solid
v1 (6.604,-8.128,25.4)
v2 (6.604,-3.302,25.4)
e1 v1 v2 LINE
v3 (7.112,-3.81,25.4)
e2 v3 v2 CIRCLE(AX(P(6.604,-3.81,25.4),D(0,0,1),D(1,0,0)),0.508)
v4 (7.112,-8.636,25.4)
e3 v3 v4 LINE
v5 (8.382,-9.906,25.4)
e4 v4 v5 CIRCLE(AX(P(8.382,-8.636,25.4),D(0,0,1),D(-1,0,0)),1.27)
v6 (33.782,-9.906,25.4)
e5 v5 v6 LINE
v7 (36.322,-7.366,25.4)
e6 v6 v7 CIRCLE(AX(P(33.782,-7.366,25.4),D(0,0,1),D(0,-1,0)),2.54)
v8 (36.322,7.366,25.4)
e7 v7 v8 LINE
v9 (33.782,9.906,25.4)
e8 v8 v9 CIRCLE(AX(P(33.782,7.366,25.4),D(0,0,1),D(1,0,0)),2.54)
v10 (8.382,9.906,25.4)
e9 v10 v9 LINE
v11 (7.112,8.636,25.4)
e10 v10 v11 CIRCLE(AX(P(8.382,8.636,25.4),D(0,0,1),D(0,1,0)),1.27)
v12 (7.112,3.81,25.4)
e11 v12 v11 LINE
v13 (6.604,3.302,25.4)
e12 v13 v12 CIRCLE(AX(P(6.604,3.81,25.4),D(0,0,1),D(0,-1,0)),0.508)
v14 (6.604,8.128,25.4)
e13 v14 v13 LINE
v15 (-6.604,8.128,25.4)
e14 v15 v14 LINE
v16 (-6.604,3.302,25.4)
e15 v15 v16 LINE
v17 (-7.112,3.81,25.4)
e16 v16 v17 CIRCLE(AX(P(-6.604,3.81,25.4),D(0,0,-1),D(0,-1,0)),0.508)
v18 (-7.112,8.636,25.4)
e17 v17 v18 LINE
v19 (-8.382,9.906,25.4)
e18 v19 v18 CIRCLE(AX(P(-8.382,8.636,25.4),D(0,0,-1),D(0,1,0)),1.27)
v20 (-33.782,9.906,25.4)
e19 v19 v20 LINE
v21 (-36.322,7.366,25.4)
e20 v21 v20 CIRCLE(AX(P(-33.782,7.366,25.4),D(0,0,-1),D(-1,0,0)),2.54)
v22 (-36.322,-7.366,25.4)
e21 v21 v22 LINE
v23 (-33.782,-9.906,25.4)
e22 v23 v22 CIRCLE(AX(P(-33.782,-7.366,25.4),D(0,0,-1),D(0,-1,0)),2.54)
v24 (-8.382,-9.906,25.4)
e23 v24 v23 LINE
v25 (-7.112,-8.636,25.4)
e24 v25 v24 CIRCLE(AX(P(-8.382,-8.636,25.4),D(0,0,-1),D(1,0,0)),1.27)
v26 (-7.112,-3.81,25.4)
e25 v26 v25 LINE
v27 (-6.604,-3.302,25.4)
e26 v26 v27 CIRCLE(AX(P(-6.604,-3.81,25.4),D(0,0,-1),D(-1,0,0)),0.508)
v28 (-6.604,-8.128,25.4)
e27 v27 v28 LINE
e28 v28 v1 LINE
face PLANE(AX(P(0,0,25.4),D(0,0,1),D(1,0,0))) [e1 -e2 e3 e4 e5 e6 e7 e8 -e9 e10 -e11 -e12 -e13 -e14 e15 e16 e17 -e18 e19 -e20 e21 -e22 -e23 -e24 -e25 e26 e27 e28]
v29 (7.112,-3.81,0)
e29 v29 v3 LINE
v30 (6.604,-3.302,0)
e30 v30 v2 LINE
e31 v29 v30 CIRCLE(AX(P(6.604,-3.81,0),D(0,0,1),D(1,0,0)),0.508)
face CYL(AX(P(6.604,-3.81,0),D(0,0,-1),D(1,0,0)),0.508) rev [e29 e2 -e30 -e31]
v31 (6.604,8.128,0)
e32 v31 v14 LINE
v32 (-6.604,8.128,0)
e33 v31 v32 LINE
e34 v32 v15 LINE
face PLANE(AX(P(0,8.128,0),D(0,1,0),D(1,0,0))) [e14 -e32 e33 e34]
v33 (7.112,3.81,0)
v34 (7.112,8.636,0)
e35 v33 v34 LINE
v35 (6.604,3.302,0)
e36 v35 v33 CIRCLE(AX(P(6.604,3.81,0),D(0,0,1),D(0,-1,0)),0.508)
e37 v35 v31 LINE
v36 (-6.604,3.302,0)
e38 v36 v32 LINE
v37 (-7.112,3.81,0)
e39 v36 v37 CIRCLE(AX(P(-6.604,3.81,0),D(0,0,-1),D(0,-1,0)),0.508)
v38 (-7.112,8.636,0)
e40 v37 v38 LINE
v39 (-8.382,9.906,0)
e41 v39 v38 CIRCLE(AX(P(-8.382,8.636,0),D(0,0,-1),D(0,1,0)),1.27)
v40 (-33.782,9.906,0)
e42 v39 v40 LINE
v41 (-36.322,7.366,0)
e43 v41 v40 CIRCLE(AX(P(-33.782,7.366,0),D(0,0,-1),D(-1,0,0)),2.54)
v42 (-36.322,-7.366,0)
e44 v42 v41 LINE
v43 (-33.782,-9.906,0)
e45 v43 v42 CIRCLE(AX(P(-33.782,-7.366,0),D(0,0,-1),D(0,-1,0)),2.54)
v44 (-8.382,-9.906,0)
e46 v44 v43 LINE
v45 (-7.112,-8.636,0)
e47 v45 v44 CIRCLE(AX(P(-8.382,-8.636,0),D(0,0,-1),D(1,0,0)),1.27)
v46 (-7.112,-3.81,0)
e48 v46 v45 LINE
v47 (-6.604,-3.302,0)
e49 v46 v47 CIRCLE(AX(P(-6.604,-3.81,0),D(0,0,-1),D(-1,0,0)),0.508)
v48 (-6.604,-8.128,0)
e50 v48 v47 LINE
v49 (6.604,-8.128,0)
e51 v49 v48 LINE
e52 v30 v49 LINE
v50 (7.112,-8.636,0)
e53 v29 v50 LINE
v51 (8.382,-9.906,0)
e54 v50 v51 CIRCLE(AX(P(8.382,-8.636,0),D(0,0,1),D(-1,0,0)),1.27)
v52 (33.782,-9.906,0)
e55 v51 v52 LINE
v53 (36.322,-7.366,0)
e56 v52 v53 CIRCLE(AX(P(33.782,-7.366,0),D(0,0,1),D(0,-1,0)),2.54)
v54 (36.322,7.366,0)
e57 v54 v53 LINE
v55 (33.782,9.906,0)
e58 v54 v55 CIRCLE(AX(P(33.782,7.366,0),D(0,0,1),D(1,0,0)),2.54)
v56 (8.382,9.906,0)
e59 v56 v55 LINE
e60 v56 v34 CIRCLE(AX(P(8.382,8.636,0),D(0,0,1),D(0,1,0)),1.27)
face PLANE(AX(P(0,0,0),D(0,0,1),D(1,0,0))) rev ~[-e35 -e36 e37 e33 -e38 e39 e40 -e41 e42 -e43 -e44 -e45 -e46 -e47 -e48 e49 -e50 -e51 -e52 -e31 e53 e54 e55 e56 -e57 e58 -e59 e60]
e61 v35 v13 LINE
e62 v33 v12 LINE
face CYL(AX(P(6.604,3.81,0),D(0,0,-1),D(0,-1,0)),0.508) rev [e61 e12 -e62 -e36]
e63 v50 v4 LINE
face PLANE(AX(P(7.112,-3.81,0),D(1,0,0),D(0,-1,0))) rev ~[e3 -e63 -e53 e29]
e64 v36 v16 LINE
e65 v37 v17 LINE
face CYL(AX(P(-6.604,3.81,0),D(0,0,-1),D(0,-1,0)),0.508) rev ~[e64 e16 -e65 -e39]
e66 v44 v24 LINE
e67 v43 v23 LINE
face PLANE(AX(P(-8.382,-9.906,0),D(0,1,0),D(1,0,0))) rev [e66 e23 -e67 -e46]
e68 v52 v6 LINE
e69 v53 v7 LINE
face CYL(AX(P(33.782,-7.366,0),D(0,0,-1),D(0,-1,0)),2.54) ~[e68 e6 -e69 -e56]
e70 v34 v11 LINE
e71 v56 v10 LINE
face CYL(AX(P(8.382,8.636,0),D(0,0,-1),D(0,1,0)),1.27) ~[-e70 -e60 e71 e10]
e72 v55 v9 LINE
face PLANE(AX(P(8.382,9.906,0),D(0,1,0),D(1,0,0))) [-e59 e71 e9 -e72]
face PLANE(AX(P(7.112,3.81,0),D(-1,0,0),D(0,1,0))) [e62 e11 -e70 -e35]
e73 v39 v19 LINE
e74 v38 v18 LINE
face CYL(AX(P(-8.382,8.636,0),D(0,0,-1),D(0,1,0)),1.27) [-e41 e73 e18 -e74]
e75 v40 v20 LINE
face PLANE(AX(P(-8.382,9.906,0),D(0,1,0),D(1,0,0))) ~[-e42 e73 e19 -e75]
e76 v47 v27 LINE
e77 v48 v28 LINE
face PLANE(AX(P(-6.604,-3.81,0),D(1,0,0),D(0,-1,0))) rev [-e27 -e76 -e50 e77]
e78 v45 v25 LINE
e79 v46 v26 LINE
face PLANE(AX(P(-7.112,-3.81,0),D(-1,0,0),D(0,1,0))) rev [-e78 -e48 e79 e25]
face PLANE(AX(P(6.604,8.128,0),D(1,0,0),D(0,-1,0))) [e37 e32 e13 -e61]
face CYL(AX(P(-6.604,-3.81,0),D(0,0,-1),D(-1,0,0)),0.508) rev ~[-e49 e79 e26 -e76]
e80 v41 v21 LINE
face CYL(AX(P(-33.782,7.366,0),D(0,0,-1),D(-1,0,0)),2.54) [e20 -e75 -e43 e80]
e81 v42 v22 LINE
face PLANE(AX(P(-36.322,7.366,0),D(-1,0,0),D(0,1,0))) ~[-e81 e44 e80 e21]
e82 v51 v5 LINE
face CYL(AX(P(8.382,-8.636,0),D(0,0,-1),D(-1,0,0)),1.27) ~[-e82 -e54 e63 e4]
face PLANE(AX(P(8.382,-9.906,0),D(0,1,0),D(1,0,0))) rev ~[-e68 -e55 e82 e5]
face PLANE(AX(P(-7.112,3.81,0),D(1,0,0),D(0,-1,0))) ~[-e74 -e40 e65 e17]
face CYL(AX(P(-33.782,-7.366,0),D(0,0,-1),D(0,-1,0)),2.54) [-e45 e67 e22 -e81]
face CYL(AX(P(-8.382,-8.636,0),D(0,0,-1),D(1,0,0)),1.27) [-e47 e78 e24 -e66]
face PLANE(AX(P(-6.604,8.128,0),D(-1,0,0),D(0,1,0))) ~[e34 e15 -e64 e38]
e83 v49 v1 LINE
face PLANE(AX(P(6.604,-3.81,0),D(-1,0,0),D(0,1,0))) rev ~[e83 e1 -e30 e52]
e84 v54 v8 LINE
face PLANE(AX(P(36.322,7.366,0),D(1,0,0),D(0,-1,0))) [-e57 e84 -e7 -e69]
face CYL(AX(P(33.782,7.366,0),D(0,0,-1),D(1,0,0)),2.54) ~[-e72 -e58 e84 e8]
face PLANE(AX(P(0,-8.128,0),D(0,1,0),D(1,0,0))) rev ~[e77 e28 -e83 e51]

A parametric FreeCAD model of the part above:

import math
import FreeCAD as App
import Part
import Sketcher
Q = App.Units.Quantity

doc = App.newDocument("Part")
body = doc.addObject("PartDesign::Body", "Body")

sketch1 = body.newObject("Sketcher::SketchObject", "Sketch")
sketch1.AttachmentSupport = (doc.getObject("XY_Plane"), [""])
sketch1.MapMode = "FlatFace"
sketch1.addGeometry([
    Part.LineSegment(App.Vector(0, 8.128, 0), App.Vector(0, -8.128, 0)),
    Part.LineSegment(App.Vector(0, -8.128, 0), App.Vector(6.604, -8.128, 0)),
    Part.LineSegment(App.Vector(6.604, -8.128, 0), App.Vector(6.604, -3.302, 0)),
    Part.ArcOfCircle(Part.Circle(App.Vector(6.604, -3.81, 0), App.Vector(0, 0, 1), 0.508), math.radians(0), math.radians(90)),
    Part.LineSegment(App.Vector(7.112, -3.81, 0), App.Vector(7.112, -8.636, 0)),
    Part.ArcOfCircle(Part.Circle(App.Vector(8.382, -8.636, 0), App.Vector(0, 0, 1), 1.27), math.radians(180), math.radians(270)),
    Part.LineSegment(App.Vector(8.382, -9.906, 0), App.Vector(33.782, -9.906, 0)),
    Part.ArcOfCircle(Part.Circle(App.Vector(33.782, -7.366, 0), App.Vector(0, 0, 1), 2.54), math.radians(-90), math.radians(0)),
    Part.LineSegment(App.Vector(36.322, -7.366, 0), App.Vector(36.322, 7.366, 0)),
    Part.ArcOfCircle(Part.Circle(App.Vector(33.782, 7.366, 0), App.Vector(0, 0, 1), 2.54), math.radians(0), math.radians(90)),
    Part.LineSegment(App.Vector(33.782, 9.906, 0), App.Vector(8.382, 9.906, 0)),
    Part.ArcOfCircle(Part.Circle(App.Vector(8.382, 8.636, 0), App.Vector(0, 0, 1), 1.27), math.radians(90), math.radians(180)),
    Part.LineSegment(App.Vector(7.112, 8.636, 0), App.Vector(7.112, 3.81, 0)),
    Part.ArcOfCircle(Part.Circle(App.Vector(6.604, 3.81, 0), App.Vector(0, 0, 1), 0.508), math.radians(-90), math.radians(0)),
    Part.LineSegment(App.Vector(6.604, 3.302, 0), App.Vector(6.604, 8.128, 0)),
    Part.LineSegment(App.Vector(6.604, 8.128, 0), App.Vector(0, 8.128, 0)),
], False)
sketch1.addConstraint([
    Sketcher.Constraint("Coincident", 0, 2, 1, 1),
    Sketcher.Constraint("Coincident", 1, 2, 2, 1),
    Sketcher.Constraint("Coincident", 2, 2, 3, 2),
    Sketcher.Constraint("Tangent", 3, 1, 4, 1),
    Sketcher.Constraint("Tangent", 4, 2, 5, 1),
    Sketcher.Constraint("Tangent", 5, 2, 6, 1),
    Sketcher.Constraint("Tangent", 6, 2, 7, 1),
    Sketcher.Constraint("Tangent", 7, 2, 8, 1),
    Sketcher.Constraint("Tangent", 8, 2, 9, 1),
    Sketcher.Constraint("Tangent", 9, 2, 10, 1),
    Sketcher.Constraint("Tangent", 10, 2, 11, 1),
    Sketcher.Constraint("Tangent", 11, 2, 12, 1),
    Sketcher.Constraint("Tangent", 12, 2, 13, 2),
    Sketcher.Constraint("Coincident", 13, 1, 14, 1),
    Sketcher.Constraint("Coincident", 14, 2, 15, 1),
    Sketcher.Constraint("Coincident", 15, 2, 0, 1),
    Sketcher.Constraint("Vertical", 0),
    Sketcher.Constraint("Horizontal", 1),
    Sketcher.Constraint("Vertical", 2),
    Sketcher.Constraint("Vertical", 4),
    Sketcher.Constraint("Horizontal", 6),
    Sketcher.Constraint("Vertical", 8),
    Sketcher.Constraint("Horizontal", 10),
    Sketcher.Constraint("Vertical", 12),
    Sketcher.Constraint("Vertical", 14),
    Sketcher.Constraint("Horizontal", 15),
    Sketcher.Constraint("Equal", 7, 9),
    Sketcher.Constraint("Equal", 5, 11),
    Sketcher.Constraint("Equal", 3, 13),
    Sketcher.Constraint("Symmetric", 0, 2, 15, 2, -1, 1),
    Sketcher.Constraint("Symmetric", 5, 3, 11, 3, -1),
    Sketcher.Constraint("Symmetric", 2, 2, 13, 1, -1),
    Sketcher.Constraint("Vertical", 13, 3, 1, 2),
    Sketcher.Constraint("Equal", 2, 4),
    Sketcher.Constraint("Radius", 7, Q("0.1 in")),
    Sketcher.Constraint("Radius", 3, Q("0.02 in")),
    Sketcher.Constraint("Radius", 5, Q("0.05 in")),
    Sketcher.Constraint("DistanceX", 1, 1, 1, 2, Q("0.26 in")),
    Sketcher.Constraint("DistanceX", 6, 1, 6, 2, Q("1 in")),
    Sketcher.Constraint("DistanceY", 0, 2, -1, 1, Q("0.32 in")),
    Sketcher.Constraint("DistanceY", 0, 2, 3, 3, Q("0.17 in")),
])
pad1 = body.newObject("PartDesign::Pad", "Pad")
pad1.Profile = sketch1
pad1.Length = Q("1 in")
doc.recompute()

mirrored = body.newObject("PartDesign::Mirrored", "Mirrored")
mirrored.Originals = [pad1]
mirrored.MirrorPlane = (doc.getObject("YZ_Plane"), [""])
body.Tip = mirrored

doc.recompute()
